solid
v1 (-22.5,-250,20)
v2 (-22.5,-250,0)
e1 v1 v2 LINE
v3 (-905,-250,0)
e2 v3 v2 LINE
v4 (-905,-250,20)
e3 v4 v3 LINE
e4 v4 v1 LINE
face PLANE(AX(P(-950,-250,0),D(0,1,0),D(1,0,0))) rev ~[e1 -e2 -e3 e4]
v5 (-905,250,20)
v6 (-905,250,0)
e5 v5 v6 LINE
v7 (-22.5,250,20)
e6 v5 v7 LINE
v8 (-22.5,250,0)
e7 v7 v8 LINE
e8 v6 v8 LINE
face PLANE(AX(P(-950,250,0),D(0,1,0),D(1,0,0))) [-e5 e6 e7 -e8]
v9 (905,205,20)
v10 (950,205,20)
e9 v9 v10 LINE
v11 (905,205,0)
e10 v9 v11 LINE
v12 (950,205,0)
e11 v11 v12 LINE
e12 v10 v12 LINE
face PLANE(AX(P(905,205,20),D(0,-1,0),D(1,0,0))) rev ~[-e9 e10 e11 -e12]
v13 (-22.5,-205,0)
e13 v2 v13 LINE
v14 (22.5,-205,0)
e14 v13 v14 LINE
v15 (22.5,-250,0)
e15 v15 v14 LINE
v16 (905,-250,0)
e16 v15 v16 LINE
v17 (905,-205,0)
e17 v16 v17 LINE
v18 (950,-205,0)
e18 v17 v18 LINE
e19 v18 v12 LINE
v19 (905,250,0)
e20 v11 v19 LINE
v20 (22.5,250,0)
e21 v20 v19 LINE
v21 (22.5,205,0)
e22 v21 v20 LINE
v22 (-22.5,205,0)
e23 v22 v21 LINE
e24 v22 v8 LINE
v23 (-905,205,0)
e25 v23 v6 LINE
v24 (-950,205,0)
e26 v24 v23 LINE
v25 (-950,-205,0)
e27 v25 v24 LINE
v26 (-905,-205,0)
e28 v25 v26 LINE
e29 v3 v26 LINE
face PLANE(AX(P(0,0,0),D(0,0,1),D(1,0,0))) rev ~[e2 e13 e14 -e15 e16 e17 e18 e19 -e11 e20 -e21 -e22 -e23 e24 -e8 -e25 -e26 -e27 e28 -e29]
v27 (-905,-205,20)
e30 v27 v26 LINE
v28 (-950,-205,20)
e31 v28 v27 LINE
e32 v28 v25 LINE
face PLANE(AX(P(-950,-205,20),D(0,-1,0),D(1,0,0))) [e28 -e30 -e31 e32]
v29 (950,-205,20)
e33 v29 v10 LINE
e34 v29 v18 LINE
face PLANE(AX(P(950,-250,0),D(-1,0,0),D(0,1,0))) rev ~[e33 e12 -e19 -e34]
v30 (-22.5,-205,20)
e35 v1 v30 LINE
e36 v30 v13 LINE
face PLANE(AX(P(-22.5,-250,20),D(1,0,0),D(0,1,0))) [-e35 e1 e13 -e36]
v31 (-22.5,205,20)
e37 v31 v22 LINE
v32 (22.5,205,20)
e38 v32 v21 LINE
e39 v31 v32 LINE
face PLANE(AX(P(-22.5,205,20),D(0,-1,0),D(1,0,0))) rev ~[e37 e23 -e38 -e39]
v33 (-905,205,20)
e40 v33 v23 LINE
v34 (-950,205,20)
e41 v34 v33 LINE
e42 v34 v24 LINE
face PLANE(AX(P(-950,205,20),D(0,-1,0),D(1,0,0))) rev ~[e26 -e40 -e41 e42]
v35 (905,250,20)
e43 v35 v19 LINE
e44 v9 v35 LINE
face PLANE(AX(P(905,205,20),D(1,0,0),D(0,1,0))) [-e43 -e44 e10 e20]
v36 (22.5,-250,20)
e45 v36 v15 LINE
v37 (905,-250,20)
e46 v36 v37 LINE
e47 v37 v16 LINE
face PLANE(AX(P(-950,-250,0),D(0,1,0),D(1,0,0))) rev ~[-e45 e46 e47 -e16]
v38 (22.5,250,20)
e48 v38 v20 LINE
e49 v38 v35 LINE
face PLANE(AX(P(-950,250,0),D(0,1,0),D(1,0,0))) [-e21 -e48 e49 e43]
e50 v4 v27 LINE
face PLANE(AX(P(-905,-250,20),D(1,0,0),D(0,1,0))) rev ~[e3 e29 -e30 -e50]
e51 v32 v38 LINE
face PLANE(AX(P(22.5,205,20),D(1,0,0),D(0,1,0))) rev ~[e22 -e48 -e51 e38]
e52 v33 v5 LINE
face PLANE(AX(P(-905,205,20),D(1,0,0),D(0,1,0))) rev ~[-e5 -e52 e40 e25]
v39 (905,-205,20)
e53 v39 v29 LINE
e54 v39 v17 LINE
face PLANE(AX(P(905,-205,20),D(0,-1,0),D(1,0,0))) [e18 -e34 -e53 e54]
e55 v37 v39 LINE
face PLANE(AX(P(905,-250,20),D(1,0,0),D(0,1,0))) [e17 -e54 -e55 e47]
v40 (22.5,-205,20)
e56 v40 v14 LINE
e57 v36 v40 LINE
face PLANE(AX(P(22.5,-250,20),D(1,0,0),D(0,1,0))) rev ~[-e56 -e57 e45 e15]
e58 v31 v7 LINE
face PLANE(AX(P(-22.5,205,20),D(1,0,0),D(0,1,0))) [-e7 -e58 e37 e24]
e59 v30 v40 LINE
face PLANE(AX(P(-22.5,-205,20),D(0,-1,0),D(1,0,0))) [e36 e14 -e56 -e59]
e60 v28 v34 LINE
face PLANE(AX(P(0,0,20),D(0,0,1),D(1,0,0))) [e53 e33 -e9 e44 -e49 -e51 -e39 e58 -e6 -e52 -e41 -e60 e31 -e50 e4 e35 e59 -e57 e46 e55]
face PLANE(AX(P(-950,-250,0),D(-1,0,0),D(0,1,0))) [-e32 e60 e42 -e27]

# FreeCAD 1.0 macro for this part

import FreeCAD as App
import Part
import Sketcher

V = App.Vector
Q = App.Units.Quantity

doc = App.newDocument("Part")
body = doc.addObject("PartDesign::Body", "Body")

# Sketch on XY plane
sketch1 = body.newObject("Sketcher::SketchObject", "Sketch")
sketch1.AttachmentSupport = (doc.getObject("XY_Plane"), [""])
sketch1.MapMode = "FlatFace"
sketch1.addGeometry([
    Part.LineSegment(V(-950, 250, 0), V(-950, -250, 0)),
    Part.LineSegment(V(-950, -250, 0), V(950, -250, 0)),
    Part.LineSegment(V(950, -250, 0), V(950, 250, 0)),
    Part.LineSegment(V(950, 250, 0), V(-950, 250, 0)),
], False)
sketch1.addConstraint([
    Sketcher.Constraint("Coincident", 0, 2, 1, 1),
    Sketcher.Constraint("Coincident", 1, 2, 2, 1),
    Sketcher.Constraint("Coincident", 2, 2, 3, 1),
    Sketcher.Constraint("Coincident", 3, 2, 0, 1),
    Sketcher.Constraint("Vertical", 0),
    Sketcher.Constraint("Horizontal", 1),
    Sketcher.Constraint("Vertical", 2),
    Sketcher.Constraint("Horizontal", 3),
    Sketcher.Constraint("Symmetric", 0, 2, 2, 2, -1, 1),
    Sketcher.Constraint("DistanceX", 1, 1, 1, 2, Q("1900 mm")),
    Sketcher.Constraint("DistanceY", 0, 2, 0, 1, Q("500 mm")),
])
pad1 = body.newObject("PartDesign::Pad", "Pad")
pad1.Profile = sketch1
pad1.Length = 20

# Sketch on XY plane
sketch2 = body.newObject("Sketcher::SketchObject", "Sketch001")
sketch2.AttachmentSupport = (doc.getObject("XY_Plane"), [""])
sketch2.MapMode = "FlatFace"
sketch2.AttachmentOffset = App.Placement(V(0, 0, 20), App.Rotation())
sketch2.addGeometry([
    Part.LineSegment(V(-950, 250, 0), V(-950, 205, 0)),  # 0
    Part.LineSegment(V(-950, 205, 0), V(-905, 205, 0)),  # 1
    Part.LineSegment(V(-905, 205, 0), V(-905, 250, 0)),  # 2
    Part.LineSegment(V(-905, 250, 0), V(-950, 250, 0)),  # 3
    Part.LineSegment(V(-950, -205, 0), V(-950, -250, 0)),  # 4
    Part.LineSegment(V(-950, -250, 0), V(-905, -250, 0)),  # 5
    Part.LineSegment(V(-905, -250, 0), V(-905, -205, 0)),  # 6
    Part.LineSegment(V(-905, -205, 0), V(-950, -205, 0)),  # 7
    Part.LineSegment(V(905, 250, 0), V(905, 205, 0)),  # 8
    Part.LineSegment(V(905, 205, 0), V(950, 205, 0)),  # 9
    Part.LineSegment(V(950, 205, 0), V(950, 250, 0)),  # 10
    Part.LineSegment(V(950, 250, 0), V(905, 250, 0)),  # 11
    Part.LineSegment(V(905, -205, 0), V(905, -250, 0)),  # 12
    Part.LineSegment(V(905, -250, 0), V(950, -250, 0)),  # 13
    Part.LineSegment(V(950, -250, 0), V(950, -205, 0)),  # 14
    Part.LineSegment(V(950, -205, 0), V(905, -205, 0)),  # 15
    Part.LineSegment(V(-22, 250, 0), V(-22, 205, 0)),  # 16
    Part.LineSegment(V(-22, 205, 0), V(22, 205, 0)),  # 17
    Part.LineSegment(V(22, 205, 0), V(22, 250, 0)),  # 18
    Part.LineSegment(V(22, 250, 0), V(-22, 250, 0)),  # 19
    Part.LineSegment(V(-22, -205, 0), V(-22, -250, 0)),  # 20
    Part.LineSegment(V(-22, -250, 0), V(22, -250, 0)),  # 21
    Part.LineSegment(V(22, -250, 0), V(22, -205, 0)),  # 22
    Part.LineSegment(V(22, -205, 0), V(-22, -205, 0)),  # 23
], False)
sketch2.addConstraint([
    Sketcher.Constraint("Coincident", 0, 2, 1, 1),
    Sketcher.Constraint("Coincident", 1, 2, 2, 1),
    Sketcher.Constraint("Coincident", 2, 2, 3, 1),
    Sketcher.Constraint("Coincident", 3, 2, 0, 1),
    Sketcher.Constraint("Coincident", 4, 2, 5, 1),
    Sketcher.Constraint("Coincident", 5, 2, 6, 1),
    Sketcher.Constraint("Coincident", 6, 2, 7, 1),
    Sketcher.Constraint("Coincident", 7, 2, 4, 1),
    Sketcher.Constraint("Coincident", 8, 2, 9, 1),
    Sketcher.Constraint("Coincident", 9, 2, 10, 1),
    Sketcher.Constraint("Coincident", 10, 2, 11, 1),
    Sketcher.Constraint("Coincident", 11, 2, 8, 1),
    Sketcher.Constraint("Coincident", 12, 2, 13, 1),
    Sketcher.Constraint("Coincident", 13, 2, 14, 1),
    Sketcher.Constraint("Coincident", 14, 2, 15, 1),
    Sketcher.Constraint("Coincident", 15, 2, 12, 1),
    Sketcher.Constraint("Coincident", 16, 2, 17, 1),
    Sketcher.Constraint("Coincident", 17, 2, 18, 1),
    Sketcher.Constraint("Coincident", 18, 2, 19, 1),
    Sketcher.Constraint("Coincident", 19, 2, 16, 1),
    Sketcher.Constraint("Coincident", 20, 2, 21, 1),
    Sketcher.Constraint("Coincident", 21, 2, 22, 1),
    Sketcher.Constraint("Coincident", 22, 2, 23, 1),
    Sketcher.Constraint("Coincident", 23, 2, 20, 1),
    Sketcher.Constraint("Vertical", 0),
    Sketcher.Constraint("Horizontal", 1),
    Sketcher.Constraint("Vertical", 2),
    Sketcher.Constraint("Horizontal", 3),
    Sketcher.Constraint("Vertical", 4),
    Sketcher.Constraint("Horizontal", 5),
    Sketcher.Constraint("Vertical", 6),
    Sketcher.Constraint("Horizontal", 7),
    Sketcher.Constraint("Vertical", 8),
    Sketcher.Constraint("Horizontal", 9),
    Sketcher.Constraint("Vertical", 10),
    Sketcher.Constraint("Horizontal", 11),
    Sketcher.Constraint("Vertical", 12),
    Sketcher.Constraint("Horizontal", 13),
    Sketcher.Constraint("Vertical", 14),
    Sketcher.Constraint("Horizontal", 15),
    Sketcher.Constraint("Vertical", 16),
    Sketcher.Constraint("Horizontal", 17),
    Sketcher.Constraint("Vertical", 18),
    Sketcher.Constraint("Horizontal", 19),
    Sketcher.Constraint("Vertical", 20),
    Sketcher.Constraint("Horizontal", 21),
    Sketcher.Constraint("Vertical", 22),
    Sketcher.Constraint("Horizontal", 23),
    Sketcher.Constraint("Symmetric", 6, 2, 8, 2, -1, 1),
    Sketcher.Constraint("Symmetric", 4, 2, 10, 2, -1, 1),
    Sketcher.Constraint("Symmetric", 2, 2, 12, 2, -1, 1),
    Sketcher.Constraint("Symmetric", 0, 2, 14, 2, -1, 1),
    Sketcher.Constraint("Symmetric", 18, 2, 20, 2, -1, 1),
    Sketcher.Constraint("Symmetric", 16, 2, 22, 2, -1, 1),
    Sketcher.Constraint("Symmetric", 1, 2, 8, 2, -2),
    Sketcher.Constraint("Symmetric", 3, 2, 10, 2, -2),
    Sketcher.Constraint("Horizontal", 9, 2, 16, 2),
    Sketcher.Constraint("Horizontal", 11, 2, 18, 2),
    Sketcher.Constraint("Vertical", 19, 2, 20, 2),
    Sketcher.Constraint("Equal", 15, 17),
    Sketcher.Constraint("Equal", 23, 0),
    Sketcher.Constraint("DistanceX", 1, 1, 1, 2, Q("45 mm")),
    Sketcher.Constraint("DistanceX", 0, 2, -1, 1, Q("950 mm")),
    Sketcher.Constraint("DistanceY", -1, 1, 0, 2, Q("205 mm")),
])
pocket1 = body.newObject("PartDesign::Pocket", "Pocket")
pocket1.Profile = sketch2
pocket1.Type = "ThroughAll"

doc.recompute()
